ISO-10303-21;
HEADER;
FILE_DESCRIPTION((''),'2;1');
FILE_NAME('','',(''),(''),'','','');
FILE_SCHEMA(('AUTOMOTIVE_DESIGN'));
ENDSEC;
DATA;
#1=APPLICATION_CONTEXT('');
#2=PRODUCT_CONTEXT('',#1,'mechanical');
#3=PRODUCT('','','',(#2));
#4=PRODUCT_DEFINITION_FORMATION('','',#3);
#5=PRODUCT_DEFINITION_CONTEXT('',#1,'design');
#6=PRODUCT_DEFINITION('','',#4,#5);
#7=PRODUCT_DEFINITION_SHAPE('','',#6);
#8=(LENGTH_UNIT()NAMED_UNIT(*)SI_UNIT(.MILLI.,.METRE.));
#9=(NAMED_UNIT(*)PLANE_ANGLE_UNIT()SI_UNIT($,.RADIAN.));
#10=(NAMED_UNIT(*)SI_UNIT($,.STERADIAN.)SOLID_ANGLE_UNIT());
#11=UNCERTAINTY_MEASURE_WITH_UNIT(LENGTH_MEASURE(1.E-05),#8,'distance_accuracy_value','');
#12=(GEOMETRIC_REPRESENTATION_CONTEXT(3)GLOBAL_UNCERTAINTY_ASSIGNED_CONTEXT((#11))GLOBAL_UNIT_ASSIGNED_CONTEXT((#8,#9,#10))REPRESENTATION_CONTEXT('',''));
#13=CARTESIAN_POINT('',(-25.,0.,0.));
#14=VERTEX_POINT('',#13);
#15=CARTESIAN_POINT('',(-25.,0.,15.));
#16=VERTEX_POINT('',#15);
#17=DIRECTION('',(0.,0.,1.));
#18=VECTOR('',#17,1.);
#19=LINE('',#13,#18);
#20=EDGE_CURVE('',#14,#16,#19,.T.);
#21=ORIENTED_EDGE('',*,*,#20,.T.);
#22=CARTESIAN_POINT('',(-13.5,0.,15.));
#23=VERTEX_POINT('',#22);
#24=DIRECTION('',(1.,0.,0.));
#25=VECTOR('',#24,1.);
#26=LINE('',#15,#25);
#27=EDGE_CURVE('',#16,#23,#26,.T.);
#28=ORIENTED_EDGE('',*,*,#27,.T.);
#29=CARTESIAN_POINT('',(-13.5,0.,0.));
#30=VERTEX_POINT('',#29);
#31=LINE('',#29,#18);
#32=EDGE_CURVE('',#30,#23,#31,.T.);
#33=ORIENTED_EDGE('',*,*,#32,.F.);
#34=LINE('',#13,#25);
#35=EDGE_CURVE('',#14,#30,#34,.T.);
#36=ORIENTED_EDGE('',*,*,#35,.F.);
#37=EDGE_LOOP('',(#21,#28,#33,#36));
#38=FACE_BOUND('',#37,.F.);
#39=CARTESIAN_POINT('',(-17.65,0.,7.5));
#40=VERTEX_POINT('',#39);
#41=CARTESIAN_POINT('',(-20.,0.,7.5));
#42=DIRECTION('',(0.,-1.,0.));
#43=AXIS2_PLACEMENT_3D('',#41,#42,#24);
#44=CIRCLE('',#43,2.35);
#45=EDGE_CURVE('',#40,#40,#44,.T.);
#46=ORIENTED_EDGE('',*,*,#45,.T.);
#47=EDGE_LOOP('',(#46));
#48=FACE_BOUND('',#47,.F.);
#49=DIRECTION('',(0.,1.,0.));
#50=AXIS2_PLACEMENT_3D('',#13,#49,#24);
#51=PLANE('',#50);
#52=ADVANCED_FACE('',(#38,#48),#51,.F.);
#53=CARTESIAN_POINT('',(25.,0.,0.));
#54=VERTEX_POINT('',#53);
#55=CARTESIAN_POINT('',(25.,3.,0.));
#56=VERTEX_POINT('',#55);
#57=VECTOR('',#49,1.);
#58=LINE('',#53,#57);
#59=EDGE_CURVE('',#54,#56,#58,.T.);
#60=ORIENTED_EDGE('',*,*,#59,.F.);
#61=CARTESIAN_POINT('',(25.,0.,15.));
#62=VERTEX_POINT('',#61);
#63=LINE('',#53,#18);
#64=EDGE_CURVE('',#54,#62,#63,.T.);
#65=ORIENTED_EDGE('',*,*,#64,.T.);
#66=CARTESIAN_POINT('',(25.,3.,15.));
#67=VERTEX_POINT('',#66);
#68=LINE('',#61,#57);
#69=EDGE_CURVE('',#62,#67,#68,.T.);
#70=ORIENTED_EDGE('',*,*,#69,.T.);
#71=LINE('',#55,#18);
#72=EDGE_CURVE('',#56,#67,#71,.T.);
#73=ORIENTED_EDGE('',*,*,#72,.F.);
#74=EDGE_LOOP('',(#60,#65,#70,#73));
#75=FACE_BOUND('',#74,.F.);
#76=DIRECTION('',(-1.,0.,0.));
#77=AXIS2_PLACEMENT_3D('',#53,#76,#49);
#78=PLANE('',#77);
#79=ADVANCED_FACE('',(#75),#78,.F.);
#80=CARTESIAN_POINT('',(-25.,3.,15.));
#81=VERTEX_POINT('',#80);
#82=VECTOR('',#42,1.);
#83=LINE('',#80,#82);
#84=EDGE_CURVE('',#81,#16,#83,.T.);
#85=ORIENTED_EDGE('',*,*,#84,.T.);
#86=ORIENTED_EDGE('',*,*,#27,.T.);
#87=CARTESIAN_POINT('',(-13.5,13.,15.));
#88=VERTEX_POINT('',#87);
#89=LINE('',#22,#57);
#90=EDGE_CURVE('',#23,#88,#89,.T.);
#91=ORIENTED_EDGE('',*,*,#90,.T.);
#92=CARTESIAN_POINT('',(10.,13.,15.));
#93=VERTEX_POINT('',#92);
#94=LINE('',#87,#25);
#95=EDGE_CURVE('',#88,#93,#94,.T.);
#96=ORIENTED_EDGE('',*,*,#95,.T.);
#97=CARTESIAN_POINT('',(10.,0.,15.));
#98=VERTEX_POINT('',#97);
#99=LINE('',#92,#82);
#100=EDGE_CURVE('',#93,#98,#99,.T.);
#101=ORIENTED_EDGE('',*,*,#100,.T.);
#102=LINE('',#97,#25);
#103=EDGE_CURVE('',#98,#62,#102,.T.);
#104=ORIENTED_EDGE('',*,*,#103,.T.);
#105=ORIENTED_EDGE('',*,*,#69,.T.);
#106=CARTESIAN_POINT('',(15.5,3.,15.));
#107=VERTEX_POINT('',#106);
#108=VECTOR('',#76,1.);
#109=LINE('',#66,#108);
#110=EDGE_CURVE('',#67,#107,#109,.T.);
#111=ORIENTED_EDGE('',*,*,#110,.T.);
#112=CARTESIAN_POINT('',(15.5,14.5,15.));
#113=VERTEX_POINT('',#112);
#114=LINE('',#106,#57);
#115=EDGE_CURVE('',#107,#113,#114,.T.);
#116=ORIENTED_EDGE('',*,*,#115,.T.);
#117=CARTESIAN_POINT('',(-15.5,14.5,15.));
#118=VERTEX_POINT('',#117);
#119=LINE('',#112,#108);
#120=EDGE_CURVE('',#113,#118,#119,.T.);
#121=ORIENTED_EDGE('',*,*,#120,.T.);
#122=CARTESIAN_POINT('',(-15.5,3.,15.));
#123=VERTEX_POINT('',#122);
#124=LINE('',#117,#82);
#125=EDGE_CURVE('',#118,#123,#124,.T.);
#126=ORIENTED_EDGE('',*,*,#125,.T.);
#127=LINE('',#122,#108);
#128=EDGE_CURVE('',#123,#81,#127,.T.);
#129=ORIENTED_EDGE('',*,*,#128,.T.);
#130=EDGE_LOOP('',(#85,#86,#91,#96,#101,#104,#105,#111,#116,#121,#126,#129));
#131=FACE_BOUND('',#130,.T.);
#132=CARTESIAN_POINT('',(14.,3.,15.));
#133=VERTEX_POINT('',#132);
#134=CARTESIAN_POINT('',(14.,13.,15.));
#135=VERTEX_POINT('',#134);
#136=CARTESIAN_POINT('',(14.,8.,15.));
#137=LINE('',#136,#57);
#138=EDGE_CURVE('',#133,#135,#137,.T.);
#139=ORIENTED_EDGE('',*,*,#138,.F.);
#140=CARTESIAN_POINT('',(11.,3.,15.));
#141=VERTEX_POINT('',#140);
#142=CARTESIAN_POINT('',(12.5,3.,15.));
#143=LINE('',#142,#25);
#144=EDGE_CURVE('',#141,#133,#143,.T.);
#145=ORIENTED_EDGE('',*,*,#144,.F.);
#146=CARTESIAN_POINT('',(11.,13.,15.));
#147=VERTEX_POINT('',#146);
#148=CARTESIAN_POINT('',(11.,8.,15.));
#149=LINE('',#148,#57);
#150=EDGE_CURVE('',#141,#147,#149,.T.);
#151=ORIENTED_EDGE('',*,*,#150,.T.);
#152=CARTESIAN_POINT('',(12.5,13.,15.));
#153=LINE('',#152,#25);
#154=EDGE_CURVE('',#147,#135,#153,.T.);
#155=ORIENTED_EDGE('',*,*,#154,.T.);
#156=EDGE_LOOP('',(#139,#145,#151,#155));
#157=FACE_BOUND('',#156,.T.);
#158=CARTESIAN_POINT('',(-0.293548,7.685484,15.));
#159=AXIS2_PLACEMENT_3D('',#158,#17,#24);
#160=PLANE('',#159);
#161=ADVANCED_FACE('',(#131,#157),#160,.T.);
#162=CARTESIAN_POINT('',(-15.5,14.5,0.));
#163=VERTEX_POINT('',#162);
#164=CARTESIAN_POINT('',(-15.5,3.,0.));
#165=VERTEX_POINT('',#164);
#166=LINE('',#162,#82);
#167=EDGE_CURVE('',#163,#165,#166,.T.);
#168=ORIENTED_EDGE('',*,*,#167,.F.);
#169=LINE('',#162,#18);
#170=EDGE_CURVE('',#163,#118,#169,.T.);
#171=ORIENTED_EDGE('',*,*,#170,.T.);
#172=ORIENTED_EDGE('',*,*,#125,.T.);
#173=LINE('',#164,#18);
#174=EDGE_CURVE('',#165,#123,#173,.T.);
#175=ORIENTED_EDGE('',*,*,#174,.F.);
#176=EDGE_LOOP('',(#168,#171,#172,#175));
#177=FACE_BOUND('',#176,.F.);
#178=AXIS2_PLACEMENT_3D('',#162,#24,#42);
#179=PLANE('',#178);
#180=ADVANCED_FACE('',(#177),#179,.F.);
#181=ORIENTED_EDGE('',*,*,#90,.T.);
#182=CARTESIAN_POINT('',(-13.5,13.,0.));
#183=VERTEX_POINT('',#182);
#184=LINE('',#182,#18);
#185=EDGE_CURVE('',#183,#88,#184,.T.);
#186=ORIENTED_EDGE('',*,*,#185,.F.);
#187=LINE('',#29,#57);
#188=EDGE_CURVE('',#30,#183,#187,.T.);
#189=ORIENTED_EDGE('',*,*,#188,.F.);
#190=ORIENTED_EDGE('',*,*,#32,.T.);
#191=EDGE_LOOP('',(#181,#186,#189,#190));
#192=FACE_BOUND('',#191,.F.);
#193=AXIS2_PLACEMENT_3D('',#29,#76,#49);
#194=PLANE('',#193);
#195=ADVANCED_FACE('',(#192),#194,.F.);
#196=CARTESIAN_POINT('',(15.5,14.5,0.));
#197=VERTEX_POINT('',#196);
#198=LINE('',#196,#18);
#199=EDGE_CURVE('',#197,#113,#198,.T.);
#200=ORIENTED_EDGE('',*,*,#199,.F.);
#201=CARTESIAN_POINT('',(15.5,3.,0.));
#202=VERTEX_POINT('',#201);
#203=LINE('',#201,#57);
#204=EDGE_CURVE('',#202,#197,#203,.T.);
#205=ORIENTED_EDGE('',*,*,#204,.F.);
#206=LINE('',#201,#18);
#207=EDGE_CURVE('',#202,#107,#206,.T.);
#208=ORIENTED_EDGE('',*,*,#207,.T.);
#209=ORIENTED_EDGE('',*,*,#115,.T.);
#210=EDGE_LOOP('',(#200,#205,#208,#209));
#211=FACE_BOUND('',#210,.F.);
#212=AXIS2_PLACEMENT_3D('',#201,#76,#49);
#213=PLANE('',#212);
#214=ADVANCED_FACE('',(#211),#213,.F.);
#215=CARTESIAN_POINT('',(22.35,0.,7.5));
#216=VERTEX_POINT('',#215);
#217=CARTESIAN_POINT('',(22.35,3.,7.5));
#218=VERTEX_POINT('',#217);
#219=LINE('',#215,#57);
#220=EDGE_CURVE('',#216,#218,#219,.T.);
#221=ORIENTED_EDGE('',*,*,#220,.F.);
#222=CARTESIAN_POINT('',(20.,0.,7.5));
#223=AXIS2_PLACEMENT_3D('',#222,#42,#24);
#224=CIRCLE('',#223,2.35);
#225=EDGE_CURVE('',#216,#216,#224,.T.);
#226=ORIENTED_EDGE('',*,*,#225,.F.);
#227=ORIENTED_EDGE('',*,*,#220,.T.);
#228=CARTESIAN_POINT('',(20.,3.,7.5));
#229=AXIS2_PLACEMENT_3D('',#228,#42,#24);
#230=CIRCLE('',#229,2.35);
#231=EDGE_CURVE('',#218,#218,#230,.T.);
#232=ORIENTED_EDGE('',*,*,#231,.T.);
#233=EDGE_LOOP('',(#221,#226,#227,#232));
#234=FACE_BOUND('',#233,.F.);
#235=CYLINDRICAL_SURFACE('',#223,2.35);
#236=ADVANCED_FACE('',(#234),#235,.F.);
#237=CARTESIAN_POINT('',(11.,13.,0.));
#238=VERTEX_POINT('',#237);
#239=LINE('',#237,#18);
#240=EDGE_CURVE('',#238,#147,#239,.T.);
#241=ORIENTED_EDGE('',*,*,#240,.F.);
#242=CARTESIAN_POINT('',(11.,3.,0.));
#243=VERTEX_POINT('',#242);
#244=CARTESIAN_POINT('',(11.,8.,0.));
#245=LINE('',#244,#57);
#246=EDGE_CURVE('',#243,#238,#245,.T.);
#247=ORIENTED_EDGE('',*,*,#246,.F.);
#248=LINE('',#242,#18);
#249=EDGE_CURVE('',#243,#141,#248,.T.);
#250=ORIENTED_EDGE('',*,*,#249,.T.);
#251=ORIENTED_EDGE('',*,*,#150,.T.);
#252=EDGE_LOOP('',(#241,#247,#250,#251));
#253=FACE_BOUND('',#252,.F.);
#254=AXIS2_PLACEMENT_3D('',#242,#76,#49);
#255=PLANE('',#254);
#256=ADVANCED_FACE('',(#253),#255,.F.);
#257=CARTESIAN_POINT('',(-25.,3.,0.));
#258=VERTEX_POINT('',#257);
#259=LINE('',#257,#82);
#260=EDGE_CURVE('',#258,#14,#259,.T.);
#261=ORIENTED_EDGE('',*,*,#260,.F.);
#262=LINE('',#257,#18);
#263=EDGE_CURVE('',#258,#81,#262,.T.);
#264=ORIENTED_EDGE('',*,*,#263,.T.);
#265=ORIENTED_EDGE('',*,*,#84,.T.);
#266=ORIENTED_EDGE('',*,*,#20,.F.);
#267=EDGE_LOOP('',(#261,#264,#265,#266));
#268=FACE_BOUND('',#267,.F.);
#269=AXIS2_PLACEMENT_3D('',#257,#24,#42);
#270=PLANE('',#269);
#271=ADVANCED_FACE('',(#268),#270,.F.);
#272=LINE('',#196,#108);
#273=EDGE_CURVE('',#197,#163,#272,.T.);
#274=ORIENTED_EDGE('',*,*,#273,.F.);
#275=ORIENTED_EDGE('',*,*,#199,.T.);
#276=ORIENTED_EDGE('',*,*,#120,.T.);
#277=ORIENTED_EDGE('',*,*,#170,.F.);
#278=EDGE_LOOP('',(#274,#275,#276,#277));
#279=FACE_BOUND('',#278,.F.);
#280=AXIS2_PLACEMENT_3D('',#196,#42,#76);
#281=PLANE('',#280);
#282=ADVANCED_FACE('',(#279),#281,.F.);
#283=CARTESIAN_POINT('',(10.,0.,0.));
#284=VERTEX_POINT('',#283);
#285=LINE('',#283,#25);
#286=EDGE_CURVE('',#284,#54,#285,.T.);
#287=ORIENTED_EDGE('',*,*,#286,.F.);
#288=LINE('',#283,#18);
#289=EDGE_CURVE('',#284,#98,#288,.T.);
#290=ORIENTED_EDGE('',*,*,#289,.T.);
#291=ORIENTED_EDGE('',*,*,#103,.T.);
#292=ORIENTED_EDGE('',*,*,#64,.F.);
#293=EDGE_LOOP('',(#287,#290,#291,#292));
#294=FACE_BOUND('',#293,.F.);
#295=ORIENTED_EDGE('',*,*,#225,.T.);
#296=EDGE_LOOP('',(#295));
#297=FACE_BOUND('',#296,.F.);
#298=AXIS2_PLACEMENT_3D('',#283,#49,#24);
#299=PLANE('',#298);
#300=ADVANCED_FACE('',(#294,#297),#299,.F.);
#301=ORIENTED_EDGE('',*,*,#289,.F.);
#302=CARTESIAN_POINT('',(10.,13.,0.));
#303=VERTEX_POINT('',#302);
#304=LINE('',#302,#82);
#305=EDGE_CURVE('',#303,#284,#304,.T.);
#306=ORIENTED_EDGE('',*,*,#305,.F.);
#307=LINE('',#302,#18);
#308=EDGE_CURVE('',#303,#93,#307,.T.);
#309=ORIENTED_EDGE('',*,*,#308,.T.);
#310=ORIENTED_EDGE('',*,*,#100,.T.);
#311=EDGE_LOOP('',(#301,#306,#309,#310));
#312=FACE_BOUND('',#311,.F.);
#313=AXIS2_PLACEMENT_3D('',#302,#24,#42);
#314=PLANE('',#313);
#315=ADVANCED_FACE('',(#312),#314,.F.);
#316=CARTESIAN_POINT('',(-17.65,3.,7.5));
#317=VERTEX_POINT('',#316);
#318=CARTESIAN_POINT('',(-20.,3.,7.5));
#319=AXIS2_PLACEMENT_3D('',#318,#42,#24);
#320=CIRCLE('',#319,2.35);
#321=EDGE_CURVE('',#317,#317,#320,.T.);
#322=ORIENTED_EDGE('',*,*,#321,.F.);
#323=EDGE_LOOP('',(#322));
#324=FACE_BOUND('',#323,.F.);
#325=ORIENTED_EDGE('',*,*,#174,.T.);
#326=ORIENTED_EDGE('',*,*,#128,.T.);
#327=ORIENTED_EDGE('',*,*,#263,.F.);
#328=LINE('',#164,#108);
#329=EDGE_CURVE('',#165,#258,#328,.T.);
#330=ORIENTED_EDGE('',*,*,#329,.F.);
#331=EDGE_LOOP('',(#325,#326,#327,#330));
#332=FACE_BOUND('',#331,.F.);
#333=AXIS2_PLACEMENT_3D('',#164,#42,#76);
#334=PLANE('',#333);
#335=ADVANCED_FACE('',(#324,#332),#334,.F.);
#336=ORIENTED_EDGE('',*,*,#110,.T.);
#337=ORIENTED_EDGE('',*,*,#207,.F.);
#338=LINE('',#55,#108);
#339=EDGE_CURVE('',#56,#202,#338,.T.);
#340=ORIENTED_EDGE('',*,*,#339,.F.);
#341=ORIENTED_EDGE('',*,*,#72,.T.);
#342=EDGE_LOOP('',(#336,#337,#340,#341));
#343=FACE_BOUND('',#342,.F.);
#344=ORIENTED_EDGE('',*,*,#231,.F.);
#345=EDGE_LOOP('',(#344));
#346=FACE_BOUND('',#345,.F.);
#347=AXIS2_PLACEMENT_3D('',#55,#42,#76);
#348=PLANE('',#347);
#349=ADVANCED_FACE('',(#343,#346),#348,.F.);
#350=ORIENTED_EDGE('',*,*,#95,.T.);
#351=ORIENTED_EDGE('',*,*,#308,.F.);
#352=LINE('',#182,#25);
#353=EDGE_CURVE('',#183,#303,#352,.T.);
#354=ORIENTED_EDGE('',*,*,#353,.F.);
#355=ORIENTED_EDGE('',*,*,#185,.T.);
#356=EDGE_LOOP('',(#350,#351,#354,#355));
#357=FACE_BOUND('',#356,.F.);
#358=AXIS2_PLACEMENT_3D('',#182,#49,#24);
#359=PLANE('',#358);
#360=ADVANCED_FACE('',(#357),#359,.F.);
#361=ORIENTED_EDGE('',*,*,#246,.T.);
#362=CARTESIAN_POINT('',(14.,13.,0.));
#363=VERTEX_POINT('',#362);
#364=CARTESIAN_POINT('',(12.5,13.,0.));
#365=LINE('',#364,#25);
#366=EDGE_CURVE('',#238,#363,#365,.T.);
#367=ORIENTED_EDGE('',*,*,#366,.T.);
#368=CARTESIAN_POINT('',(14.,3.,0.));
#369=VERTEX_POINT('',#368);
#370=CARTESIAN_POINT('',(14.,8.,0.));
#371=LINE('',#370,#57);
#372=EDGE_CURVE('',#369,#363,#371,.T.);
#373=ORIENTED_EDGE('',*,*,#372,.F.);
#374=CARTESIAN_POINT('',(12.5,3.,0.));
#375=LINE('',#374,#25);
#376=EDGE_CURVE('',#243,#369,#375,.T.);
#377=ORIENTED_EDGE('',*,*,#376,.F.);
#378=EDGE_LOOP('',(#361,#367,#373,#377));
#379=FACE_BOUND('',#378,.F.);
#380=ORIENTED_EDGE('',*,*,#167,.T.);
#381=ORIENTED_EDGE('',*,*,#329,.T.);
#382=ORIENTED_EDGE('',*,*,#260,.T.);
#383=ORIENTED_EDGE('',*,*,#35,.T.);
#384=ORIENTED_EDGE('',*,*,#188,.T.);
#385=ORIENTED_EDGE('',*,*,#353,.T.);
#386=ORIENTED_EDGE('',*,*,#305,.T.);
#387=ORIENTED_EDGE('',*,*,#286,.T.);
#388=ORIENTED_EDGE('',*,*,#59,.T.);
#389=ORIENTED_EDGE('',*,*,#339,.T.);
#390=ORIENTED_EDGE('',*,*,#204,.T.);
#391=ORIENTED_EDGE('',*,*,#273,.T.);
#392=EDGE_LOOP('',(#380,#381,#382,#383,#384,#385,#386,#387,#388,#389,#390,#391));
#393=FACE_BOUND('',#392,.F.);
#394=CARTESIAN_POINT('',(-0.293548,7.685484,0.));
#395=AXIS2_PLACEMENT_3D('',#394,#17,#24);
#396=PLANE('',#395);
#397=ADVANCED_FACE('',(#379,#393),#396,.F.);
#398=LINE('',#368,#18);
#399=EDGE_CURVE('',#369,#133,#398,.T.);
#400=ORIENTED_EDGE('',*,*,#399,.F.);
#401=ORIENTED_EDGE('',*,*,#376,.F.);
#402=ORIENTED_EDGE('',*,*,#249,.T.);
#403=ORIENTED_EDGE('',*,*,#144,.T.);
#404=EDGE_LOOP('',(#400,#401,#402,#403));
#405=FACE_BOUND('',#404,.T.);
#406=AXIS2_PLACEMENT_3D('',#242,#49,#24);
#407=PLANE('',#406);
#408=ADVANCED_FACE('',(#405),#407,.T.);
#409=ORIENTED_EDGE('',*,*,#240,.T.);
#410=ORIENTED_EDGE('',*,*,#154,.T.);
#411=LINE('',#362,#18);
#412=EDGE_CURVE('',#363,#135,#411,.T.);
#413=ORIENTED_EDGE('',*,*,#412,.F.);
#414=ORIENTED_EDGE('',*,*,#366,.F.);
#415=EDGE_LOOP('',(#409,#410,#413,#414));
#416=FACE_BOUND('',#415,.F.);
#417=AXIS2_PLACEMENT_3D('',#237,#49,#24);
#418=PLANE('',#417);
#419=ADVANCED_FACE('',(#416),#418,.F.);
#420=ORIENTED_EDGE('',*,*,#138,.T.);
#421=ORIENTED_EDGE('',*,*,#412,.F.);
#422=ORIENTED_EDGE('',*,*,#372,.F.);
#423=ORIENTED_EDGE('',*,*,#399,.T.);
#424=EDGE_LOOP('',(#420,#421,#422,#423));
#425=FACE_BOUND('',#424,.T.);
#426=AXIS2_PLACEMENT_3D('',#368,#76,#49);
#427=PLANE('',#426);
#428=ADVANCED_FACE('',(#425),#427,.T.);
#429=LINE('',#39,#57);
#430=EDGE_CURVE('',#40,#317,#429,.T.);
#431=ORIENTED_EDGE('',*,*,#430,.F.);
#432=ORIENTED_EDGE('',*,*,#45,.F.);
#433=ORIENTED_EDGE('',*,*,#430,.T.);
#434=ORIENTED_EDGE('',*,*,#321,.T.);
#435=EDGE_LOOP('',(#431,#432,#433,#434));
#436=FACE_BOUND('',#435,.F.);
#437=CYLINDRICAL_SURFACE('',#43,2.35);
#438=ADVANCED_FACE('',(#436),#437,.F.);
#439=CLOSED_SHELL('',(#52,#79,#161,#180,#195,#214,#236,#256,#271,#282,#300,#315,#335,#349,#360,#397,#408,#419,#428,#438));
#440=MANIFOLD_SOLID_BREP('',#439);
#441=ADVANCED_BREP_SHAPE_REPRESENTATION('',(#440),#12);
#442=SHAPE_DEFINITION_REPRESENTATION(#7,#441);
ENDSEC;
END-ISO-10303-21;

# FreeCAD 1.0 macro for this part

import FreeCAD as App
import Part
import Sketcher
from FreeCAD import Vector
Q = App.Units.Quantity


def add_polygon(sketch, points):
    """Adds a closed chain of lines whose ends are joined by coincident constraints."""
    first, n = sketch.GeometryCount, len(points)
    for a, b in zip(points, points[1:] + points[:1]):
        sketch.addGeometry(Part.LineSegment(App.Vector(*a, 0), App.Vector(*b, 0)), False)
    for i in range(n):
        sketch.addConstraint(Sketcher.Constraint("Coincident", first + i, 2, first + (i + 1) % n, 1))

doc = App.newDocument("Part")
body = doc.addObject("PartDesign::Body", "Body")
body.AllowCompound = True

# Sketch on XY plane
sketch1 = doc.addObject("Sketcher::SketchObject", "Sketch")
body.addObject(sketch1)
sketch1.AttachmentSupport = (doc.XY_Plane, [""])
sketch1.MapMode = "FlatFace"
sketch1.addGeometry(Part.Circle(Vector(-20, 7.5, 0), Vector(0, 0, 1), 2.4), False)
sketch1.addGeometry(Part.Circle(Vector(20, 7.5, 0), Vector(0, 0, 1), 2.4), False)
sketch1.addConstraint(Sketcher.Constraint("Equal", 0, 1))
sketch1.addConstraint(Sketcher.Constraint("Symmetric", 0, 3, 1, 3, -2))
sketch1.addConstraint(Sketcher.Constraint("Diameter", 0, Q("4.7 mm")))
sketch1.addConstraint(Sketcher.Constraint("DistanceX", 0, 3, -1, 1, Q("20 mm")))
sketch1.addConstraint(Sketcher.Constraint("DistanceY", -1, 1, 0, 3, Q("7.5 mm")))
pad1 = doc.addObject("PartDesign::Pad", "Pad")
body.addObject(pad1)
pad1.Profile = sketch1
pad1.Length = 5
pad1.Reversed = True
body2 = doc.addObject("PartDesign::Body", "Body001")
body2.AllowCompound = True
doc.recompute()

body.Placement = App.Placement(Vector(0, 0, 0), App.Rotation(Vector(1, 0, 0), 90))
boolean = doc.addObject("PartDesign::Boolean", "Boolean")
body2.addObject(boolean)
boolean.Type = "Fuse"
boolean.addObjects([body])
body3 = doc.addObject("PartDesign::Body", "Body002")

# Sketch on XY plane
sketch2 = doc.addObject("Sketcher::SketchObject", "Sketch001")
body3.addObject(sketch2)
sketch2.AttachmentSupport = (doc.getObject("XY_Plane002"), [""])
sketch2.MapMode = "FlatFace"
add_polygon(sketch2, [(-25, 0), (-13.5, 0), (-13.5, 13), (10, 13), (10, 0), (25, 0), (25, 3), (15.5, 3), (15.5, 14.5), (-15.5, 14.5), (-15.5, 3), (-25, 3)])  # lines 0-11
add_polygon(sketch2, [(14, 3), (11, 3), (11, 13), (14, 13)])  # lines 12-15
sketch2.addConstraint(Sketcher.Constraint("Horizontal", 0))
sketch2.addConstraint(Sketcher.Constraint("Vertical", 1))
sketch2.addConstraint(Sketcher.Constraint("Horizontal", 2))
sketch2.addConstraint(Sketcher.Constraint("Vertical", 3))
sketch2.addConstraint(Sketcher.Constraint("Horizontal", 4))
sketch2.addConstraint(Sketcher.Constraint("Vertical", 5))
sketch2.addConstraint(Sketcher.Constraint("Horizontal", 6))
sketch2.addConstraint(Sketcher.Constraint("Vertical", 7))
sketch2.addConstraint(Sketcher.Constraint("Horizontal", 8))
sketch2.addConstraint(Sketcher.Constraint("Vertical", 9))
sketch2.addConstraint(Sketcher.Constraint("Horizontal", 10))
sketch2.addConstraint(Sketcher.Constraint("Vertical", 11))
sketch2.addConstraint(Sketcher.Constraint("Horizontal", 12))
sketch2.addConstraint(Sketcher.Constraint("Vertical", 13))
sketch2.addConstraint(Sketcher.Constraint("Horizontal", 14))
sketch2.addConstraint(Sketcher.Constraint("Vertical", 15))
sketch2.addConstraint(Sketcher.Constraint("Symmetric", 4, 2, 11, 2, -1, 1))
sketch2.addConstraint(Sketcher.Constraint("Symmetric", 6, 2, 9, 2, -2))
sketch2.addConstraint(Sketcher.Constraint("PointOnObject", 0, 2, -1))
sketch2.addConstraint(Sketcher.Constraint("Horizontal", 10, 2, 12, 2))
sketch2.addConstraint(Sketcher.Constraint("Horizontal", 2, 2, 13, 2))
sketch2.addConstraint(Sketcher.Constraint("Equal", 14, 5))
sketch2.addConstraint(Sketcher.Constraint("Equal", 0, 7))
sketch2.addConstraint(Sketcher.Constraint("DistanceX", 4, 1, 4, 2, Q("15 mm")))
sketch2.addConstraint(Sketcher.Constraint("DistanceX", 8, 2, 8, 1, Q("31 mm")))
sketch2.addConstraint(Sketcher.Constraint("DistanceX", 12, 2, 12, 1, Q("3 mm")))
sketch2.addConstraint(Sketcher.Constraint("DistanceY", 1, 1, 1, 2, Q("13 mm")))
sketch2.addConstraint(Sketcher.Constraint("DistanceX", 0, 1, 0, 2, Q("11.5 mm")))
sketch2.addConstraint(Sketcher.Constraint("DistanceX", 2, 1, 2, 2, Q("23.5 mm")))
sketch2.addConstraint(Sketcher.Constraint("DistanceX", -1, 1, 12, 2, Q("11 mm")))
pad2 = doc.addObject("PartDesign::Pad", "Pad001")
body3.addObject(pad2)
pad2.Profile = sketch2
pad2.Length = 15
doc.recompute()

boolean2 = doc.addObject("PartDesign::Boolean", "Boolean001")
body3.addObject(boolean2)
boolean2.Type = "Cut"
boolean2.addObjects([body2])

doc.recompute()
